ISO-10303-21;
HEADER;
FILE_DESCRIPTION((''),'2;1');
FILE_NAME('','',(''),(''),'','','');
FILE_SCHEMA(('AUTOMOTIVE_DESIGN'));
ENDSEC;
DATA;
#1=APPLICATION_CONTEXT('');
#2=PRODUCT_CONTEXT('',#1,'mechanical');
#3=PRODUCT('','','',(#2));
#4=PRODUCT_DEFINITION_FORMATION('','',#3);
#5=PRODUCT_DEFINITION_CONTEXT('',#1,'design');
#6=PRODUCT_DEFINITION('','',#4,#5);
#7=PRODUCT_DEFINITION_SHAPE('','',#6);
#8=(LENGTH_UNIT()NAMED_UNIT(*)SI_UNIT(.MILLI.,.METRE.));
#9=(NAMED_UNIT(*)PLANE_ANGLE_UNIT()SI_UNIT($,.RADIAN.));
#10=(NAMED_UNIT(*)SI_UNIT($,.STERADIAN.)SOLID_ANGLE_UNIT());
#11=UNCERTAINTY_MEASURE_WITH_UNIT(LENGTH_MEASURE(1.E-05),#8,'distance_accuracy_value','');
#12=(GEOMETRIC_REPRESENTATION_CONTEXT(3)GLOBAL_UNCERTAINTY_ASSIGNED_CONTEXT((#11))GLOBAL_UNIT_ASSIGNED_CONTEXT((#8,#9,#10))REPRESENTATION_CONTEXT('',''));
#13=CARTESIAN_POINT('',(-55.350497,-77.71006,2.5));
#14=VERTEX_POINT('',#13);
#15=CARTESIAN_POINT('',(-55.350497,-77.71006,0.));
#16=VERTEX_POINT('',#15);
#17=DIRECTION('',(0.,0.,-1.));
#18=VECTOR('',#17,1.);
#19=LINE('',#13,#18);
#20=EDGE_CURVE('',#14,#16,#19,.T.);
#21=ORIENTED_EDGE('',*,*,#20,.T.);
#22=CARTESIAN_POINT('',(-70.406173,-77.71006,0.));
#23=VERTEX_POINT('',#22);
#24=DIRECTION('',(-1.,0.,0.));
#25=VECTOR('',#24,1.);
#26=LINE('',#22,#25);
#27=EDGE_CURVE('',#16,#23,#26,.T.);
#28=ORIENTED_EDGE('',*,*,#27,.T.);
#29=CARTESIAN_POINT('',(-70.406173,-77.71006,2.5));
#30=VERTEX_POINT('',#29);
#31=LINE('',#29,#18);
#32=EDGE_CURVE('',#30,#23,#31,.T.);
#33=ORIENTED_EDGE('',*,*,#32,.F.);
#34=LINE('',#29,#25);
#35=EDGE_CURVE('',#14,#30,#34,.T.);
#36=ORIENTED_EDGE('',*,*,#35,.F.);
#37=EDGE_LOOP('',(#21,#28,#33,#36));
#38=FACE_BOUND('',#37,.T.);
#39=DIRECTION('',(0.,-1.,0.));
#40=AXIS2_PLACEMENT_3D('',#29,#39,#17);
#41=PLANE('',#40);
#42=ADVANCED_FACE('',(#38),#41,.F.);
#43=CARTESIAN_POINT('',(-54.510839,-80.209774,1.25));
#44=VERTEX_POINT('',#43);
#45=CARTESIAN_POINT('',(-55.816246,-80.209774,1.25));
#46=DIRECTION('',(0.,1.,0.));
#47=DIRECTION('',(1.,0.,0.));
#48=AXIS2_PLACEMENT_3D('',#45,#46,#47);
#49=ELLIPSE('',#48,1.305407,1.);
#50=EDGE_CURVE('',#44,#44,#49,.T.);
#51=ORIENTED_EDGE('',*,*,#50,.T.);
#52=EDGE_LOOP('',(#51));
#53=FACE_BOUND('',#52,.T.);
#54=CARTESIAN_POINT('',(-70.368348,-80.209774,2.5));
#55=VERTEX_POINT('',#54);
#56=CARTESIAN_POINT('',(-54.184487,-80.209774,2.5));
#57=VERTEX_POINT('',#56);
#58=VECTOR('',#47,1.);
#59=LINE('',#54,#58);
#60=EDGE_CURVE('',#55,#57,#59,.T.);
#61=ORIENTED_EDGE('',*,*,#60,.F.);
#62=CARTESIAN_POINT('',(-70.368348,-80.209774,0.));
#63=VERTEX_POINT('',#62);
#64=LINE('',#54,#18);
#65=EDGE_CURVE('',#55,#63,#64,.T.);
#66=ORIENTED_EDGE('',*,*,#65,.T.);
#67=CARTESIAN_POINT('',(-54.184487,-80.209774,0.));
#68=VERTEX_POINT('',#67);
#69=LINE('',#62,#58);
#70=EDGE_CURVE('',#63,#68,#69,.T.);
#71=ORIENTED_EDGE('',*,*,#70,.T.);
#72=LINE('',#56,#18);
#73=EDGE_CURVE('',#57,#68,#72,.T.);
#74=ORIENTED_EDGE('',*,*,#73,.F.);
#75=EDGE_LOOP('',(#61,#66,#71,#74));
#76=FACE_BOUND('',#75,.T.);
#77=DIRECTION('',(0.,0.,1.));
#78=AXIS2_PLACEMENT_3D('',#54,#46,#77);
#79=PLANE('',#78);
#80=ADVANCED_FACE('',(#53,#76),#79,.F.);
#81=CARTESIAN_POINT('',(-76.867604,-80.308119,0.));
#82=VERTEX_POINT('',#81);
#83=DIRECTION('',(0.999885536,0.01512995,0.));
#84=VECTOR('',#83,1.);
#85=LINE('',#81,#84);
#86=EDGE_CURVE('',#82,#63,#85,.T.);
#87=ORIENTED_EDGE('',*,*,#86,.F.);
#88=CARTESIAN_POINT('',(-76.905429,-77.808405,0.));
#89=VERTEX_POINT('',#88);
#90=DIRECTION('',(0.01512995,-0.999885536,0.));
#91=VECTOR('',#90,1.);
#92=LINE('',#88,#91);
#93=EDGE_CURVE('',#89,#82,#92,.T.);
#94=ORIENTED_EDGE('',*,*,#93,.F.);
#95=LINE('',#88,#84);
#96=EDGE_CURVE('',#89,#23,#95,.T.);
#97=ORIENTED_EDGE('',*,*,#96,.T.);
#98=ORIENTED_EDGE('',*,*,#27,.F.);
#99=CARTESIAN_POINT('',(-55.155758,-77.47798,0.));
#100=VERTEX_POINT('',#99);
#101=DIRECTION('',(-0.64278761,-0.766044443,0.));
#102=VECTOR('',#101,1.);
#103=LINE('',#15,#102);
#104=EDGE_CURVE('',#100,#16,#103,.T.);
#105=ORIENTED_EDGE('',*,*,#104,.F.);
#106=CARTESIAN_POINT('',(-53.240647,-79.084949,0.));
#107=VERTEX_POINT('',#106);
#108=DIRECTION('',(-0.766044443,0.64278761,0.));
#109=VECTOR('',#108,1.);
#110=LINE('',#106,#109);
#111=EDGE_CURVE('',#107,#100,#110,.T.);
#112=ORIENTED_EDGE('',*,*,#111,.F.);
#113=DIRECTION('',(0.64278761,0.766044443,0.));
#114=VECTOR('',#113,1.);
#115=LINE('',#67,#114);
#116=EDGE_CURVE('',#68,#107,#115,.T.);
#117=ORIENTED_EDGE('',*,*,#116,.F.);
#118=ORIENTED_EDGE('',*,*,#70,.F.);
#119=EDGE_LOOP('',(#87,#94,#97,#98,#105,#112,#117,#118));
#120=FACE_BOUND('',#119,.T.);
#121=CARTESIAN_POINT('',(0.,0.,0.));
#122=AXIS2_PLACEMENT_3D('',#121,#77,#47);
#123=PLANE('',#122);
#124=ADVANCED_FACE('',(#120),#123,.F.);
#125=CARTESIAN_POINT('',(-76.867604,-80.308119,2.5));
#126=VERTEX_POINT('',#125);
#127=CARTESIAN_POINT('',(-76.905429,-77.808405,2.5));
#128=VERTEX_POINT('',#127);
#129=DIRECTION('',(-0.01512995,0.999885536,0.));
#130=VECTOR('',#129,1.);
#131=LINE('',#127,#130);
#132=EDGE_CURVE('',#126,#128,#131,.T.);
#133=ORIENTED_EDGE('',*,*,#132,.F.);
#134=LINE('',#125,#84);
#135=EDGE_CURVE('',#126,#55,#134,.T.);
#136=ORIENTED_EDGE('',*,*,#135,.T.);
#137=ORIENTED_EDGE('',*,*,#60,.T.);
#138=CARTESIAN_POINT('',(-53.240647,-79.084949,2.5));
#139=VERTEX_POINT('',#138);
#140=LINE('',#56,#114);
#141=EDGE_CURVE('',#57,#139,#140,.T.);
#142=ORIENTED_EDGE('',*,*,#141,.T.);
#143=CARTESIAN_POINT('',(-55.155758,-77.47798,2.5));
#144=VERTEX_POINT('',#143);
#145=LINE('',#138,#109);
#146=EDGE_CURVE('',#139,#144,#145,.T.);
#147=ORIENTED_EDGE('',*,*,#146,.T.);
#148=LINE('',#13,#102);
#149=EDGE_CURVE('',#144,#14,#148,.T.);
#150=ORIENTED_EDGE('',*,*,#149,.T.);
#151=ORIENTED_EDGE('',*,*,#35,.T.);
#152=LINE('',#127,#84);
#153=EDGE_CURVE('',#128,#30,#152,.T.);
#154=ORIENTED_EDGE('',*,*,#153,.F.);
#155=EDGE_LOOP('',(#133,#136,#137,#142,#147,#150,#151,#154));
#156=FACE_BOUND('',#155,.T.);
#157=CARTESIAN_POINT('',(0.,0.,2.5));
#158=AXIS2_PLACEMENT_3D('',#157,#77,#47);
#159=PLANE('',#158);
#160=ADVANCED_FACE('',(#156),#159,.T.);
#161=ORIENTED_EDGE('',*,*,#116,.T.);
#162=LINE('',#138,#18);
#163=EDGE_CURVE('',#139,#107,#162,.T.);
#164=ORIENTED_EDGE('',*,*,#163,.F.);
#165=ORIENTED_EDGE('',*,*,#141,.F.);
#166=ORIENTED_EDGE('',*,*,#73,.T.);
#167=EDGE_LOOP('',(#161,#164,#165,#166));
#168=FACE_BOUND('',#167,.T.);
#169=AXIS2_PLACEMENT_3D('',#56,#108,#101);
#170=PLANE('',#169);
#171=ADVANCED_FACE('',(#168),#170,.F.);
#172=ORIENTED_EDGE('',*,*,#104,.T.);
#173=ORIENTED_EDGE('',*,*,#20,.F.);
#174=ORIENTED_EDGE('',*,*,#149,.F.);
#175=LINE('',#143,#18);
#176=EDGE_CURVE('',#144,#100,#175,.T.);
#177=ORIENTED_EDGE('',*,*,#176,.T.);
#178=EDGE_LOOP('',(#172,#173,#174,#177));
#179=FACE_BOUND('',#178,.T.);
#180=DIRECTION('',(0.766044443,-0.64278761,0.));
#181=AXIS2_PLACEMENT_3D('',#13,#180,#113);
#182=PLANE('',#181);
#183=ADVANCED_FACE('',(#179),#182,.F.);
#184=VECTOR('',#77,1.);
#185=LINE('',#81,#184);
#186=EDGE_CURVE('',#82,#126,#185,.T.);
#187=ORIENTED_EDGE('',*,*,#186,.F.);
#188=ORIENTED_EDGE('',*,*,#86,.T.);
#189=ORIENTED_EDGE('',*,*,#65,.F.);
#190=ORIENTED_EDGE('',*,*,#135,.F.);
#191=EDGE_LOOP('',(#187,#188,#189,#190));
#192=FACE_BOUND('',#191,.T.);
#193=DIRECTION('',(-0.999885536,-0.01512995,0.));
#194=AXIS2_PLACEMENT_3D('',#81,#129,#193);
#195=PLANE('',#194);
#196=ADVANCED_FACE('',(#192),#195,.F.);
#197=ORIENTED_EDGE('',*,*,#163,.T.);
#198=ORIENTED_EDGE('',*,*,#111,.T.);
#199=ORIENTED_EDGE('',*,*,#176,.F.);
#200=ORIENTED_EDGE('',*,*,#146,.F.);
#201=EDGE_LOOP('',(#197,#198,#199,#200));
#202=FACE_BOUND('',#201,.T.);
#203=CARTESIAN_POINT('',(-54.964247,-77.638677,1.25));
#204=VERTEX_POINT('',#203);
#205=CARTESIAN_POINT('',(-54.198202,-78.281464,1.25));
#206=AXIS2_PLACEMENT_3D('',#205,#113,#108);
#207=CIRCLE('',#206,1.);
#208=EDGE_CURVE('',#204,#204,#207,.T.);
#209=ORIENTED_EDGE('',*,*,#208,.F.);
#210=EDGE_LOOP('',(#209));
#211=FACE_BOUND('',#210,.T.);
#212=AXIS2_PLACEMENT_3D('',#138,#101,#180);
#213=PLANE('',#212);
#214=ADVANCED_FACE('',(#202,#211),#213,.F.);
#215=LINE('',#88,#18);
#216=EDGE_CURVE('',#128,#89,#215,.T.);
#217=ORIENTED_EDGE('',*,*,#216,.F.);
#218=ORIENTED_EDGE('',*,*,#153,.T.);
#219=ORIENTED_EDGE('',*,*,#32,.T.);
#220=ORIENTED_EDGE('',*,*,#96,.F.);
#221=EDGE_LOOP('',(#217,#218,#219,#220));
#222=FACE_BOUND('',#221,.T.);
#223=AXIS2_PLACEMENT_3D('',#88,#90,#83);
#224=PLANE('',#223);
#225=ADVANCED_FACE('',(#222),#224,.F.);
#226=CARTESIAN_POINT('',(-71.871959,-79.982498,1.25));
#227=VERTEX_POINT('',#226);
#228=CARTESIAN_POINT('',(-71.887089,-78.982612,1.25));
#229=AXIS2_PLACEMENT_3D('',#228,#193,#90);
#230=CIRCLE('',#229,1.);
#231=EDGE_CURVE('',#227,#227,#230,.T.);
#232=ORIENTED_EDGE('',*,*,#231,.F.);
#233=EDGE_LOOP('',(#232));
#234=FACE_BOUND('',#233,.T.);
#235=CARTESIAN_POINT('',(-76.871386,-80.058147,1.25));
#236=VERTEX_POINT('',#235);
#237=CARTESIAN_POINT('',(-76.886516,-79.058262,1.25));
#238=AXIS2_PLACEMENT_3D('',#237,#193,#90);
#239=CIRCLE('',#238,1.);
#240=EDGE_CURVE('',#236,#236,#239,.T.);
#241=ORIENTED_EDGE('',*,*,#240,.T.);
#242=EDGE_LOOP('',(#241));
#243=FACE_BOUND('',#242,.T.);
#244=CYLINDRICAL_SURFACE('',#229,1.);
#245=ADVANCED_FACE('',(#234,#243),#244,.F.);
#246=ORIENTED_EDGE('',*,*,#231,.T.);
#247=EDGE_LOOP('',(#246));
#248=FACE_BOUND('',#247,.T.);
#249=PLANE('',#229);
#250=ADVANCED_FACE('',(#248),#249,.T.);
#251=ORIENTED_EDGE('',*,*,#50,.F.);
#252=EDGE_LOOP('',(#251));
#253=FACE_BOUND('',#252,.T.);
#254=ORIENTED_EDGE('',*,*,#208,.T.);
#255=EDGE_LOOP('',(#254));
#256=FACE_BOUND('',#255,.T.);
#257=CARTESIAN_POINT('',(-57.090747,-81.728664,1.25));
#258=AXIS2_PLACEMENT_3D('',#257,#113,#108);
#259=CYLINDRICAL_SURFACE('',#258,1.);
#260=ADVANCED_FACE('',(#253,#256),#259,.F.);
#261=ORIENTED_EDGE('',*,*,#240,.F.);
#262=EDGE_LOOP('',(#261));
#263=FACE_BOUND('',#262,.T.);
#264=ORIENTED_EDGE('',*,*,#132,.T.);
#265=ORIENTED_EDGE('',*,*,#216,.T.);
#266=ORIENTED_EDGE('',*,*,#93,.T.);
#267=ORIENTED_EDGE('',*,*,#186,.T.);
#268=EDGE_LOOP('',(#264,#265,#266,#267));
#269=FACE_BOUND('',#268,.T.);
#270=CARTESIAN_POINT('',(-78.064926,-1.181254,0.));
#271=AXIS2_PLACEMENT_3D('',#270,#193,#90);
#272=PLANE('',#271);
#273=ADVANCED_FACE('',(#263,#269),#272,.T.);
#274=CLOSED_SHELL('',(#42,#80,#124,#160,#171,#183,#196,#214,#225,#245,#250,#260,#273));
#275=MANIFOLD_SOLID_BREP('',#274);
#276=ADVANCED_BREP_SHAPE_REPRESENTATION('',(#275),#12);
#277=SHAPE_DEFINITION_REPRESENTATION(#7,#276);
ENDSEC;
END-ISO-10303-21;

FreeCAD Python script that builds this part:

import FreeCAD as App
import Part
import Sketcher
Q = App.Units.Quantity

doc = App.newDocument("Part")
body = doc.addObject("PartDesign::Body", "Body")

# Sketch on XY plane
sketch1 = body.newObject("Sketcher::SketchObject", "Sketch")
sketch1.AttachmentSupport = (doc.getObject("XY_Plane"), [""])
sketch1.MapMode = "FlatFace"
sketch1.addGeometry([
    Part.LineSegment(App.Vector(-55.350497, -77.71006, 0), App.Vector(-70.406173, -77.71006, 0)),  # 0
    Part.LineSegment(App.Vector(-70.406173, -77.71006, 0), App.Vector(-70.368348, -80.209774, 0)),  # 1
    Part.LineSegment(App.Vector(-70.368348, -80.209774, 0), App.Vector(-54.184487, -80.209774, 0)),  # 2
    Part.LineSegment(App.Vector(-54.184487, -80.209774, 0), App.Vector(-53.240647, -79.084949, 0)),  # 3
    Part.LineSegment(App.Vector(-53.240647, -79.084949, 0), App.Vector(-55.155758, -77.47798, 0)),  # 4
    Part.LineSegment(App.Vector(-55.155758, -77.47798, 0), App.Vector(-55.350497, -77.71006, 0)),  # 5
], False)
sketch1.addConstraint([
    Sketcher.Constraint("Coincident", 0, 2, 1, 1),
    Sketcher.Constraint("Coincident", 1, 2, 2, 1),
    Sketcher.Constraint("Coincident", 2, 2, 3, 1),
    Sketcher.Constraint("Coincident", 3, 2, 4, 1),
    Sketcher.Constraint("Coincident", 4, 2, 5, 1),
    Sketcher.Constraint("Coincident", 5, 2, 0, 1),
    Sketcher.Constraint("Horizontal", 0),
    Sketcher.Constraint("Horizontal", 2),
    Sketcher.Constraint("Distance", 1, Q("2.5 mm")),
    Sketcher.Constraint("Distance", 4, Q("2.5 mm")),
    Sketcher.Constraint("DistanceX", 2, 1, 2, 2, Q("16.18386 mm")),
    Sketcher.Constraint("DistanceX", 1, 2, 3, 2, Q("17.127701 mm")),
    Sketcher.Constraint("Distance", 5, Q("0.302959 mm")),
    Sketcher.Constraint("DistanceX", 0, 2, 0, 1, Q("15.055676 mm")),
    Sketcher.Constraint("DistanceY", 0, 2, -1, 1, Q("77.71006 mm")),
    Sketcher.Constraint("DistanceY", 3, 2, -1, 1, Q("79.084949 mm")),
    Sketcher.Constraint("DistanceX", 4, 2, -1, 1, Q("55.155758 mm")),
    Sketcher.Constraint("DistanceY", 4, 2, -1, 1, Q("77.47798 mm")),
])
pad1 = body.newObject("PartDesign::Pad", "Pad")
pad1.Profile = sketch1
pad1.Length = 2.5

# Sketch on an angled plane
sketch2 = body.newObject("Sketcher::SketchObject", "Sketch001")
sketch2.Placement = App.Placement(App.Vector(-60.939488, -72.624854, 0), App.Rotation(App.Vector(0, 0, -1), App.Vector(-0.766044443, 0.64278761, 0), App.Vector(0.64278761, 0.766044443, 0), "ZXY"))
sketch2.addGeometry(Part.Circle(App.Vector(-1.25, -8.800123, 0), App.Vector(0, 0, 1), 1), False)
sketch2.addConstraint([
    Sketcher.Constraint("Diameter", 0, Q("2 mm")),
    Sketcher.Constraint("DistanceX", 0, 3, -1, 1, Q("1.25 mm")),
    Sketcher.Constraint("DistanceY", 0, 3, -1, 1, Q("8.800123 mm")),
])
pocket1 = body.newObject("PartDesign::Pocket", "Pocket")
pocket1.Profile = sketch2
pocket1.Length = 4.5

# Sketch on an angled plane
sketch3 = body.newObject("Sketcher::SketchObject", "Sketch002")
sketch3.Placement = App.Placement(App.Vector(-71.56567, -1.082909, 0), App.Rotation(App.Vector(0, 0, 1), App.Vector(-0.01512995, 0.999885536, 0), App.Vector(-0.999885536, -0.01512995, 0), "ZXY"))
sketch3.addGeometry(Part.Circle(App.Vector(1.25, -77.885923, 0), App.Vector(0, 0, 1), 1), False)
sketch3.addConstraint([
    Sketcher.Constraint("Diameter", 0, Q("2 mm")),
    Sketcher.Constraint("DistanceX", -1, 1, 0, 3, Q("1.25 mm")),
    Sketcher.Constraint("DistanceY", 0, 3, -1, 1, Q("77.885923 mm")),
])
pocket2 = body.newObject("PartDesign::Pocket", "Pocket001")
pocket2.Profile = sketch3
pocket2.Length = 9.5

# Sketch on an angled plane
sketch4 = body.newObject("Sketcher::SketchObject", "Sketch003")
sketch4.Placement = App.Placement(App.Vector(-71.56567, -1.082909, 0), App.Rotation(App.Vector(0, 0, 1), App.Vector(-0.01512995, 0.999885536, 0), App.Vector(-0.999885536, -0.01512995, 0), "ZXY"))
sketch4.addGeometry(Part.Circle(App.Vector(1.25, -77.885923, 0), App.Vector(0, 0, 1), 1), False)
sketch4.addConstraint([
    Sketcher.Constraint("Diameter", 0, Q("2 mm")),
    Sketcher.Constraint("DistanceX", -1, 1, 0, 3, Q("1.25 mm")),
    Sketcher.Constraint("DistanceY", 0, 3, -1, 1, Q("77.885923 mm")),
])
pad2 = body.newObject("PartDesign::Pad", "Pad001")
pad2.Profile = sketch4
pad2.Length = 9.5
pad2.Reversed = True

# Sketch on an angled plane
sketch5 = body.newObject("Sketcher::SketchObject", "Sketch004")
sketch5.Placement = App.Placement(App.Vector(-71.56567, -1.082909, 0), App.Rotation(App.Vector(0, 0, 1), App.Vector(-0.01512995, 0.999885536, 0), App.Vector(-0.999885536, -0.01512995, 0), "ZXY"))
sketch5.addGeometry([
    Part.LineSegment(App.Vector(0, -76.635923, 0), App.Vector(0, -79.122897, 0)),
    Part.LineSegment(App.Vector(0, -79.122897, 0), App.Vector(2.5, -79.122897, 0)),
    Part.LineSegment(App.Vector(2.5, -79.122897, 0), App.Vector(2.5, -76.635923, 0)),
    Part.LineSegment(App.Vector(2.5, -76.635923, 0), App.Vector(0, -76.635923, 0)),
], False)
sketch5.addConstraint([
    Sketcher.Constraint("Coincident", 0, 2, 1, 1),
    Sketcher.Constraint("Coincident", 1, 2, 2, 1),
    Sketcher.Constraint("Coincident", 2, 2, 3, 1),
    Sketcher.Constraint("Coincident", 3, 2, 0, 1),
    Sketcher.Constraint("Vertical", 0),
    Sketcher.Constraint("Horizontal", 1),
    Sketcher.Constraint("Vertical", 2),
    Sketcher.Constraint("Horizontal", 3),
    Sketcher.Constraint("PointOnObject", 0, 2, -2),
    Sketcher.Constraint("DistanceX", 1, 1, 1, 2, Q("2.5 mm")),
    Sketcher.Constraint("DistanceY", 0, 2, 0, 1, Q("2.486974 mm")),
    Sketcher.Constraint("DistanceY", 0, 2, -1, 1, Q("79.122897 mm")),
])
pad3 = body.newObject("PartDesign::Pad", "Pad002")
pad3.Profile = sketch5
pad3.Length = 17

# Sketch on an angled plane
sketch6 = body.newObject("Sketcher::SketchObject", "Sketch005")
sketch6.Placement = App.Placement(App.Vector(-88.563724, -1.340118, 0), App.Rotation(App.Vector(0, 0, 1), App.Vector(-0.01512995, 0.999885536, 0), App.Vector(-0.999885536, -0.01512995, 0), "ZXY"))
sketch6.addGeometry(Part.Circle(App.Vector(1.25, -77.885923, 0), App.Vector(0, 0, 1), 1), False)
sketch6.addConstraint([
    Sketcher.Constraint("Diameter", 0, Q("2 mm")),
    Sketcher.Constraint("DistanceX", -1, 1, 0, 3, Q("1.25 mm")),
    Sketcher.Constraint("DistanceY", 0, 3, -1, 1, Q("77.885923 mm")),
])
pocket3 = body.newObject("PartDesign::Pocket", "Pocket002")
pocket3.Profile = sketch6
pocket3.Length = 9.5

# Sketch on an angled plane
sketch7 = body.newObject("Sketcher::SketchObject", "Sketch006")
sketch7.Placement = App.Placement(App.Vector(-88.563724, -1.340118, 0), App.Rotation(App.Vector(0, 0, 1), App.Vector(-0.01512995, 0.999885536, 0), App.Vector(-0.999885536, -0.01512995, 0), "ZXY"))
sketch7.addGeometry([
    Part.LineSegment(App.Vector(0, -76.635923, 0), App.Vector(0, -79.146777, 0)),
    Part.LineSegment(App.Vector(0, -79.146777, 0), App.Vector(2.5, -79.146777, 0)),
    Part.LineSegment(App.Vector(2.5, -79.146777, 0), App.Vector(2.5, -76.635923, 0)),
    Part.LineSegment(App.Vector(2.5, -76.635923, 0), App.Vector(0, -76.635923, 0)),
], False)
sketch7.addConstraint([
    Sketcher.Constraint("Coincident", 0, 2, 1, 1),
    Sketcher.Constraint("Coincident", 1, 2, 2, 1),
    Sketcher.Constraint("Coincident", 2, 2, 3, 1),
    Sketcher.Constraint("Coincident", 3, 2, 0, 1),
    Sketcher.Constraint("Vertical", 0),
    Sketcher.Constraint("Horizontal", 1),
    Sketcher.Constraint("Vertical", 2),
    Sketcher.Constraint("Horizontal", 3),
    Sketcher.Constraint("PointOnObject", 0, 2, -2),
    Sketcher.Constraint("DistanceX", 1, 1, 1, 2, Q("2.5 mm")),
    Sketcher.Constraint("DistanceY", 0, 2, 0, 1, Q("2.510853 mm")),
    Sketcher.Constraint("DistanceY", 0, 2, -1, 1, Q("79.146777 mm")),
])
pocket4 = body.newObject("PartDesign::Pocket", "Pocket003")
pocket4.Profile = sketch7
pocket4.Length = 10.5

# Sketch on an angled plane
sketch8 = body.newObject("Sketcher::SketchObject", "Sketch007")
sketch8.Placement = App.Placement(App.Vector(-78.064926, -1.181254, 0), App.Rotation(App.Vector(0, 0, 1), App.Vector(-0.01512995, 0.999885536, 0), App.Vector(-0.999885536, -0.01512995, 0), "ZXY"))
sketch8.addGeometry(Part.Circle(App.Vector(1.25, -77.885923, 0), App.Vector(0, 0, 1), 1), False)
sketch8.addConstraint([
    Sketcher.Constraint("Diameter", 0, Q("2 mm")),
    Sketcher.Constraint("DistanceX", -1, 1, 0, 3, Q("1.25 mm")),
    Sketcher.Constraint("DistanceY", 0, 3, -1, 1, Q("77.885923 mm")),
])
pocket5 = body.newObject("PartDesign::Pocket", "Pocket004")
pocket5.Profile = sketch8
pocket5.Length = 4.5

# Sketch on an angled plane
sketch9 = body.newObject("Sketcher::SketchObject", "Sketch008")
sketch9.Placement = App.Placement(App.Vector(-78.064926, -1.181254, 0), App.Rotation(App.Vector(0, 0, 1), App.Vector(-0.01512995, 0.999885536, 0), App.Vector(-0.999885536, -0.01512995, 0), "ZXY"))
sketch9.addGeometry(Part.Circle(App.Vector(1.25, -77.885923, 0), App.Vector(0, 0, 1), 1), False)
sketch9.addConstraint([
    Sketcher.Constraint("Diameter", 0, Q("2 mm")),
    Sketcher.Constraint("DistanceX", -1, 1, 0, 3, Q("1.25 mm")),
    Sketcher.Constraint("DistanceY", 0, 3, -1, 1, Q("77.885923 mm")),
])
pad4 = body.newObject("PartDesign::Pad", "Pad003")
pad4.Profile = sketch9
pad4.Length = 4.5
pad4.Reversed = True

# Sketch on an angled plane
sketch10 = body.newObject("Sketcher::SketchObject", "Sketch009")
sketch10.Placement = App.Placement(App.Vector(-78.064926, -1.181254, 0), App.Rotation(App.Vector(0, 0, 1), App.Vector(-0.01512995, 0.999885536, 0), App.Vector(-0.999885536, -0.01512995, 0), "ZXY"))
sketch10.addGeometry(Part.Circle(App.Vector(1.25, -77.885923, 0), App.Vector(0, 0, 1), 1), False)
sketch10.addConstraint([
    Sketcher.Constraint("Diameter", 0, Q("2 mm")),
    Sketcher.Constraint("DistanceX", -1, 1, 0, 3, Q("1.25 mm")),
    Sketcher.Constraint("DistanceY", 0, 3, -1, 1, Q("77.885923 mm")),
])
pocket6 = body.newObject("PartDesign::Pocket", "Pocket005")
pocket6.Profile = sketch10
pocket6.Length = 4

# Sketch on an angled plane
sketch11 = body.newObject("Sketcher::SketchObject", "Sketch010")
sketch11.Placement = App.Placement(App.Vector(-78.064926, -1.181254, 0), App.Rotation(App.Vector(0, 0, 1), App.Vector(-0.01512995, 0.999885536, 0), App.Vector(-0.999885536, -0.01512995, 0), "ZXY"))
sketch11.addGeometry([
    Part.LineSegment(App.Vector(0, -76.635923, 0), App.Vector(0, -79.135923, 0)),
    Part.LineSegment(App.Vector(0, -79.135923, 0), App.Vector(2.5, -79.135923, 0)),
    Part.LineSegment(App.Vector(2.5, -79.135923, 0), App.Vector(2.5, -76.635923, 0)),
    Part.LineSegment(App.Vector(2.5, -76.635923, 0), App.Vector(0, -76.635923, 0)),
], False)
sketch11.addConstraint([
    Sketcher.Constraint("Coincident", 0, 2, 1, 1),
    Sketcher.Constraint("Coincident", 1, 2, 2, 1),
    Sketcher.Constraint("Coincident", 2, 2, 3, 1),
    Sketcher.Constraint("Coincident", 3, 2, 0, 1),
    Sketcher.Constraint("Vertical", 0),
    Sketcher.Constraint("Horizontal", 1),
    Sketcher.Constraint("Vertical", 2),
    Sketcher.Constraint("Horizontal", 3),
    Sketcher.Constraint("PointOnObject", 0, 2, -2),
    Sketcher.Constraint("Equal", 3, 0),
    Sketcher.Constraint("DistanceX", 1, 1, 1, 2, Q("2.5 mm")),
    Sketcher.Constraint("DistanceY", 0, 2, -1, 1, Q("79.135923 mm")),
])
pocket7 = body.newObject("PartDesign::Pocket", "Pocket006")
pocket7.Profile = sketch11
pocket7.Length = 6.5

# Sketch on an angled plane
sketch12 = body.newObject("Sketcher::SketchObject", "Sketch011")
sketch12.Placement = App.Placement(App.Vector(-71.56567, -1.082909, 0), App.Rotation(App.Vector(0, 0, 1), App.Vector(-0.01512995, 0.999885536, 0), App.Vector(-0.999885536, -0.01512995, 0), "ZXY"))
sketch12.addGeometry([
    Part.LineSegment(App.Vector(0, -76.635923, 0), App.Vector(0, -79.135923, 0)),
    Part.LineSegment(App.Vector(0, -79.135923, 0), App.Vector(2.5, -79.135923, 0)),
    Part.LineSegment(App.Vector(2.5, -79.135923, 0), App.Vector(2.5, -76.635923, 0)),
    Part.LineSegment(App.Vector(2.5, -76.635923, 0), App.Vector(0, -76.635923, 0)),
], False)
sketch12.addConstraint([
    Sketcher.Constraint("Coincident", 0, 2, 1, 1),
    Sketcher.Constraint("Coincident", 1, 2, 2, 1),
    Sketcher.Constraint("Coincident", 2, 2, 3, 1),
    Sketcher.Constraint("Coincident", 3, 2, 0, 1),
    Sketcher.Constraint("Vertical", 0),
    Sketcher.Constraint("Horizontal", 1),
    Sketcher.Constraint("Vertical", 2),
    Sketcher.Constraint("Horizontal", 3),
    Sketcher.Constraint("PointOnObject", 0, 2, -2),
    Sketcher.Constraint("Equal", 3, 0),
    Sketcher.Constraint("DistanceX", 1, 1, 1, 2, Q("2.5 mm")),
    Sketcher.Constraint("DistanceY", 0, 2, -1, 1, Q("79.135923 mm")),
])
pad5 = body.newObject("PartDesign::Pad", "Pad004")
pad5.Profile = sketch12
pad5.Length = 6.5

# Sketch on an angled plane
sketch13 = body.newObject("Sketcher::SketchObject", "Sketch012")
sketch13.Placement = App.Placement(App.Vector(-78.064926, -1.181254, 0), App.Rotation(App.Vector(0, 0, 1), App.Vector(-0.01512995, 0.999885536, 0), App.Vector(-0.999885536, -0.01512995, 0), "ZXY"))
sketch13.addGeometry(Part.Circle(App.Vector(1.25, -77.885923, 0), App.Vector(0, 0, 1), 1), False)
sketch13.addConstraint([
    Sketcher.Constraint("Diameter", 0, Q("2 mm")),
    Sketcher.Constraint("DistanceX", -1, 1, 0, 3, Q("1.25 mm")),
    Sketcher.Constraint("DistanceY", 0, 3, -1, 1, Q("77.885923 mm")),
])
pocket8 = body.newObject("PartDesign::Pocket", "Pocket007")
pocket8.Profile = sketch13
pocket8.Length = 5

doc.recompute()
